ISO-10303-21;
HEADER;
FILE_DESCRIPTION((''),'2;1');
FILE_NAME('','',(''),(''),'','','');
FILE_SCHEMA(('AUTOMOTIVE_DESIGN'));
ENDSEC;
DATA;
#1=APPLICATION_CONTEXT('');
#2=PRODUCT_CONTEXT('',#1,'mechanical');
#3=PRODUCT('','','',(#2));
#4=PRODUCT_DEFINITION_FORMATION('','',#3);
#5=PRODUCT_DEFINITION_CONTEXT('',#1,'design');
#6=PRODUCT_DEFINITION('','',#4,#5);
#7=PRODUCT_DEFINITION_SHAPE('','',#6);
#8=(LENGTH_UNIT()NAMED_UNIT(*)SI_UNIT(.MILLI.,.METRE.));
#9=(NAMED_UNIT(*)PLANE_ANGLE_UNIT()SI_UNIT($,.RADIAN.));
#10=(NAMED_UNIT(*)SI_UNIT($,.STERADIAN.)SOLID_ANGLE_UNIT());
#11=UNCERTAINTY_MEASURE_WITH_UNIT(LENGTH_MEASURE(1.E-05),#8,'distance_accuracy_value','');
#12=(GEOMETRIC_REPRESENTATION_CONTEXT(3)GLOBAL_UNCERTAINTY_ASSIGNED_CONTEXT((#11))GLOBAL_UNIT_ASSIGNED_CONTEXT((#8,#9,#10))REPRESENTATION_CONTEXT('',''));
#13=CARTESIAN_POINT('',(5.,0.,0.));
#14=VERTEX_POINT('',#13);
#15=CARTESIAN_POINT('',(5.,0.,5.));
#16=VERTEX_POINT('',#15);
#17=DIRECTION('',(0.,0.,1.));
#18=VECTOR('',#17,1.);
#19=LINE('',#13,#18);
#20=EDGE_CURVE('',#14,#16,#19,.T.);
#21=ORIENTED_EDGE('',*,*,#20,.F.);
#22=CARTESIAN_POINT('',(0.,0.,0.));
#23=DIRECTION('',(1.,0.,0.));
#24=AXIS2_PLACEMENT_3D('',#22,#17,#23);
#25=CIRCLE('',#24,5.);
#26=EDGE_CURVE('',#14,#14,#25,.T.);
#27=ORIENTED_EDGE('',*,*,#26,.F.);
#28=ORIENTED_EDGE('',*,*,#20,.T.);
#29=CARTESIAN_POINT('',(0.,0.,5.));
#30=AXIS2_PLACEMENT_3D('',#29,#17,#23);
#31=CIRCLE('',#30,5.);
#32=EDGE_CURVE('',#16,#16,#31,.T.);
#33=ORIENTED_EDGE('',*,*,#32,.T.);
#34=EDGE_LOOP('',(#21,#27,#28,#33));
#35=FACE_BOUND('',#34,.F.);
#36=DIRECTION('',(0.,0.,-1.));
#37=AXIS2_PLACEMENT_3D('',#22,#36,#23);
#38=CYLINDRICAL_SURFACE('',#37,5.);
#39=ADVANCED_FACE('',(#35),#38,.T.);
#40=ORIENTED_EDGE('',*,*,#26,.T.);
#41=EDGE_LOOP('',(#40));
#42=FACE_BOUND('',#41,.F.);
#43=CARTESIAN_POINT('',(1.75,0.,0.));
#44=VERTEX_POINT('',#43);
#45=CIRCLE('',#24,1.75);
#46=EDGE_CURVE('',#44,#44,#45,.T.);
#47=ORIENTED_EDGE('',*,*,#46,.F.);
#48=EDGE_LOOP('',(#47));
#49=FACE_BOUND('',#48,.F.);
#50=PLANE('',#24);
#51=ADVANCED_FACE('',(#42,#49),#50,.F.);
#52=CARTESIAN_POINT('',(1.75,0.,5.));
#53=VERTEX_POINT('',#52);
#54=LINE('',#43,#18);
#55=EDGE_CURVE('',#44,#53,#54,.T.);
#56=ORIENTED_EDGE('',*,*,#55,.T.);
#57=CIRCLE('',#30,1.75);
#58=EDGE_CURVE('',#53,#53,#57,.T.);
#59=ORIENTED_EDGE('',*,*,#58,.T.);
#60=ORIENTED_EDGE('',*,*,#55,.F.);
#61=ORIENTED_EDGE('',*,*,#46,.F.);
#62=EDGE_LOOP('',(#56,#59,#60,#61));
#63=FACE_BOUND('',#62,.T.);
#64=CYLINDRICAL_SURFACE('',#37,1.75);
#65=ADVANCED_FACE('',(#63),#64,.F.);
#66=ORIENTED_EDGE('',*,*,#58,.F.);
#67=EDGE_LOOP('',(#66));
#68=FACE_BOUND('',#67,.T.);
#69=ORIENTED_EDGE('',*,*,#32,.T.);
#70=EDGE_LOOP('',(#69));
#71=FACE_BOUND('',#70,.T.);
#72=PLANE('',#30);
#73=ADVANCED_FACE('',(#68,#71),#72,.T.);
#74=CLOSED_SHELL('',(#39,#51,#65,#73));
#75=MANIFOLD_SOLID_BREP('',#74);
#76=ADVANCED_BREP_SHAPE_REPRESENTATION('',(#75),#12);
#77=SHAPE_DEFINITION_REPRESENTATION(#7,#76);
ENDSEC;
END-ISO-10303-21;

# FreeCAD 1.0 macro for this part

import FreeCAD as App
import Part
import Sketcher

doc = App.newDocument("Part")
body = doc.addObject("PartDesign::Body", "Body")

sketch1 = body.newObject("Sketcher::SketchObject", "Sketch")
sketch1.AttachmentSupport = (doc.getObject("XY_Plane"), [""])
sketch1.MapMode = "FlatFace"
sketch1.addGeometry(Part.Circle(App.Vector(0, 0, 0), App.Vector(0, 0, 1), 5), False)
sketch1.addGeometry(Part.Circle(App.Vector(0, 0, 0), App.Vector(0, 0, 1), 1.8), False)
sketch1.addConstraint(Sketcher.Constraint("Coincident", 0, 3, -1, 1))
sketch1.addConstraint(Sketcher.Constraint("Coincident", 1, 3, -1, 1))
sketch1.addConstraint(Sketcher.Constraint("Diameter", 0, 10.0))
sketch1.addConstraint(Sketcher.Constraint("Diameter", 1, 3.5))
pad1 = body.newObject("PartDesign::Pad", "Pad")
pad1.Profile = sketch1
pad1.Length = 5

doc.recompute()
